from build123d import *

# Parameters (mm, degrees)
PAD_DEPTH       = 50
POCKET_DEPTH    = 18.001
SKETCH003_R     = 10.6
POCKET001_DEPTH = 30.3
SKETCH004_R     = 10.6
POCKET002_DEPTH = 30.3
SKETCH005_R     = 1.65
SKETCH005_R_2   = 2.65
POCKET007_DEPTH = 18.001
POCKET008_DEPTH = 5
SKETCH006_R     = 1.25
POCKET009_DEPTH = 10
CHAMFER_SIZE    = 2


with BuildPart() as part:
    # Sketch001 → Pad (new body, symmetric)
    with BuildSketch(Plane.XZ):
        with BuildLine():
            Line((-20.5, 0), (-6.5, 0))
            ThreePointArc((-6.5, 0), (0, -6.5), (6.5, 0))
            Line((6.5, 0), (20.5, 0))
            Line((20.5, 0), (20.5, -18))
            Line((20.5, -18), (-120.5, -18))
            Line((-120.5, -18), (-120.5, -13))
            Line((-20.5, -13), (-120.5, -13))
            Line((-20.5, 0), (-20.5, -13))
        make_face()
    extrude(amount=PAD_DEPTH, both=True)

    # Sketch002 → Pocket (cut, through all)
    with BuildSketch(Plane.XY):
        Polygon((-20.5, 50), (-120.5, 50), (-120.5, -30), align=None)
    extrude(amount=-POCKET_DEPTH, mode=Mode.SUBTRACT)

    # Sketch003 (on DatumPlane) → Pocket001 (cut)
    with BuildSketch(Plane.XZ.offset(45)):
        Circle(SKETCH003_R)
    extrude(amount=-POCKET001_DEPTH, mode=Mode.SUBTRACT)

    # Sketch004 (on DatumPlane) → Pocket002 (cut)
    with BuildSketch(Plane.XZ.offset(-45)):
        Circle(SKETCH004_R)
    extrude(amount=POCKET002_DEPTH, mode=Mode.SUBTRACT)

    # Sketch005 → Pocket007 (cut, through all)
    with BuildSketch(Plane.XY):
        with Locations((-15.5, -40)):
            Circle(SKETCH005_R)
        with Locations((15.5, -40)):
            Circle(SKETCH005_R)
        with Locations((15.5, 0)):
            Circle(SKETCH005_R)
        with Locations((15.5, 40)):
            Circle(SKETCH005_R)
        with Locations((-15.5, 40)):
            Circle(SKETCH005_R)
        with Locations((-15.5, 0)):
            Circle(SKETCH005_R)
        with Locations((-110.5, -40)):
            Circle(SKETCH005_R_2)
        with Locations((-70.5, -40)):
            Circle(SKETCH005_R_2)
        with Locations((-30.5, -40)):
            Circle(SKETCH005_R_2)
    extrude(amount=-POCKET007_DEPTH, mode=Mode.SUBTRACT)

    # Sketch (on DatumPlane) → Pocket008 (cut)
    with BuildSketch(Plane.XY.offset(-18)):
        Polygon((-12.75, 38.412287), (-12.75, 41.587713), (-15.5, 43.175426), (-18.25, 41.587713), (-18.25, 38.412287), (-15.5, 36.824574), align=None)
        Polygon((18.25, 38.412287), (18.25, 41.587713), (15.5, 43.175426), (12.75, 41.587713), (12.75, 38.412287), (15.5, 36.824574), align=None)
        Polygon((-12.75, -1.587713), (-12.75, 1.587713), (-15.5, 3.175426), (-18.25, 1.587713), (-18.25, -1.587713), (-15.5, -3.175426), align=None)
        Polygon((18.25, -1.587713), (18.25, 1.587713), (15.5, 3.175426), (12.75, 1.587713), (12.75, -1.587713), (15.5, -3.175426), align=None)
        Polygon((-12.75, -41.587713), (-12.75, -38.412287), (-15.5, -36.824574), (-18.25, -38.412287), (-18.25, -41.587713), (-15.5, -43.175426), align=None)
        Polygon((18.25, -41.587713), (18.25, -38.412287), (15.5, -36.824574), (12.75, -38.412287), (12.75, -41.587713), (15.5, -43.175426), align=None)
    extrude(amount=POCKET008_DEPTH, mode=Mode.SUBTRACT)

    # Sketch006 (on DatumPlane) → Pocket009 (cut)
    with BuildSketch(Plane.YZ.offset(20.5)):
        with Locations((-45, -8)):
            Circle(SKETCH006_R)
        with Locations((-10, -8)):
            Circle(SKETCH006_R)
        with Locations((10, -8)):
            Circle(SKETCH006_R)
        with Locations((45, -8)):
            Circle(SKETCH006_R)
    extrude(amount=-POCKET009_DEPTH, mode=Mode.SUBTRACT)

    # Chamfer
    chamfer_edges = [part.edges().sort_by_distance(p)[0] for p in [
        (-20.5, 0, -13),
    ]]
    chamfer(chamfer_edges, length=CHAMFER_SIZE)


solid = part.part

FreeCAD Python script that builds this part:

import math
import FreeCAD as App
import Part
import Sketcher
from FreeCAD import Vector
Q = App.Units.Quantity


def edges_at(feature, points):
    """Names of the edges that pass closest to the given points."""
    edges = feature.Shape.Edges
    near = lambda p: min(range(len(edges)), key=lambda i: edges[i].distToShape(Part.Vertex(*p))[0])
    return sorted({f"Edge{near(p) + 1}" for p in points})


def add_polygon(sketch, points):
    """Adds a closed chain of lines whose ends are joined by coincident constraints."""
    first, n = sketch.GeometryCount, len(points)
    for a, b in zip(points, points[1:] + points[:1]):
        sketch.addGeometry(Part.LineSegment(App.Vector(*a, 0), App.Vector(*b, 0)), False)
    for i in range(n):
        sketch.addConstraint(Sketcher.Constraint("Coincident", first + i, 2, first + (i + 1) % n, 1))

doc = App.newDocument("Part")
body = doc.addObject("PartDesign::Body", "Body")

# Sketch on XZ plane
sketch1 = body.newObject("Sketcher::SketchObject", "Sketch")
sketch1.AttachmentSupport = (doc.getObject("XZ_Plane"), [""])
sketch1.MapMode = "FlatFace"
sketch1.addGeometry([
    Part.LineSegment(Vector(-6.5, 0, 0), Vector(-20.5, 0, 0)),  # 0
    Part.LineSegment(Vector(-20.5, 0, 0), Vector(-20.5, -13, 0)),  # 1
    Part.LineSegment(Vector(-20.5, -13, 0), Vector(-120.5, -13, 0)),  # 2
    Part.LineSegment(Vector(-120.5, -13, 0), Vector(-120.5, -18, 0)),  # 3
    Part.LineSegment(Vector(-120.5, -18, 0), Vector(20.5, -18, 0)),  # 4
    Part.LineSegment(Vector(20.5, -18, 0), Vector(20.5, 0, 0)),  # 5
    Part.LineSegment(Vector(20.5, 0, 0), Vector(6.5, 0, 0)),  # 6
    Part.ArcOfCircle(Part.Circle(Vector(0, 0, 0), Vector(0, 0, 1), 6.5), math.radians(180), math.radians(360)),  # 7
], False)
sketch1.addConstraint([
    Sketcher.Constraint("Coincident", 0, 2, 1, 1),
    Sketcher.Constraint("Coincident", 1, 2, 2, 1),
    Sketcher.Constraint("Coincident", 2, 2, 3, 1),
    Sketcher.Constraint("Coincident", 3, 2, 4, 1),
    Sketcher.Constraint("Coincident", 4, 2, 5, 1),
    Sketcher.Constraint("Coincident", 5, 2, 6, 1),
    Sketcher.Constraint("Coincident", 6, 2, 7, 2),
    Sketcher.Constraint("Coincident", 7, 1, 0, 1),
    Sketcher.Constraint("Horizontal", 0),
    Sketcher.Constraint("Vertical", 1),
    Sketcher.Constraint("Horizontal", 2),
    Sketcher.Constraint("Vertical", 3),
    Sketcher.Constraint("Horizontal", 4),
    Sketcher.Constraint("Vertical", 5),
    Sketcher.Constraint("Horizontal", 6),
    Sketcher.Constraint("Coincident", 7, 3, -1, 1),
    Sketcher.Constraint("Symmetric", 0, 2, 5, 2, -1, 1),
    Sketcher.Constraint("PointOnObject", 0, 2, -1),
    Sketcher.Constraint("Radius", 7, Q("6.5 mm")),
    Sketcher.Constraint("DistanceX", 0, 2, 0, 1, Q("14 mm")),
    Sketcher.Constraint("DistanceX", 2, 2, 2, 1, Q("100 mm")),
    Sketcher.Constraint("DistanceY", 1, 2, 1, 1, Q("13 mm")),
    Sketcher.Constraint("DistanceY", 3, 2, 3, 1, Q("5 mm")),
])
pad1 = body.newObject("PartDesign::Pad", "Pad")
pad1.Profile = sketch1
pad1.Length = 100
pad1.Midplane = True

# Sketch on XY plane
sketch2 = body.newObject("Sketcher::SketchObject", "Sketch001")
sketch2.AttachmentSupport = (doc.getObject("XY_Plane"), [""])
sketch2.MapMode = "FlatFace"
add_polygon(sketch2, [(-20.5, 50), (-120.5, 50), (-120.5, -30)])  # lines 0-2
sketch2.addConstraint([
    Sketcher.Constraint("Horizontal", 0),
    Sketcher.Constraint("Vertical", 1),
    Sketcher.Constraint("DistanceX", 0, 2, 0, 1, Q("100 mm")),
    Sketcher.Constraint("DistanceY", 1, 2, 1, 1, Q("80 mm")),
    Sketcher.Constraint("DistanceY", -1, 1, 0, 2, Q("50 mm")),
    Sketcher.Constraint("DistanceX", 0, 2, -1, 1, Q("120.5 mm")),
])
pocket1 = body.newObject("PartDesign::Pocket", "Pocket")
pocket1.Profile = sketch2
pocket1.Type = "ThroughAll"

# Sketch on XZ plane
sketch3 = body.newObject("Sketcher::SketchObject", "Sketch002")
sketch3.AttachmentSupport = (doc.getObject("XZ_Plane"), [""])
sketch3.MapMode = "FlatFace"
sketch3.AttachmentOffset = App.Placement(Vector(0, 0, 45), App.Rotation())
sketch3.addGeometry(Part.Circle(Vector(0, 0, 0), Vector(0, 0, 1), 10.6), False)
sketch3.addConstraint([
    Sketcher.Constraint("Coincident", 0, 3, -1, 1),
    Sketcher.Constraint("Diameter", 0, Q("21.2 mm")),
])
pocket2 = body.newObject("PartDesign::Pocket", "Pocket001")
pocket2.Profile = sketch3
pocket2.Length = 30.3

# Sketch on XZ plane
sketch4 = body.newObject("Sketcher::SketchObject", "Sketch003")
sketch4.AttachmentSupport = (doc.getObject("XZ_Plane"), [""])
sketch4.MapMode = "FlatFace"
sketch4.AttachmentOffset = App.Placement(Vector(0, 0, -45), App.Rotation())
sketch4.addGeometry(Part.Circle(Vector(0, 0, 0), Vector(0, 0, 1), 10.6), False)
sketch4.addConstraint([
    Sketcher.Constraint("Coincident", 0, 3, -1, 1),
    Sketcher.Constraint("Diameter", 0, Q("21.2 mm")),
])
pocket3 = body.newObject("PartDesign::Pocket", "Pocket002")
pocket3.Profile = sketch4
pocket3.Length = 30.3
pocket3.Reversed = True

# Sketch on XY plane
sketch5 = body.newObject("Sketcher::SketchObject", "Sketch004")
sketch5.AttachmentSupport = (doc.getObject("XY_Plane"), [""])
sketch5.MapMode = "FlatFace"
sketch5.addGeometry([
    Part.Circle(Vector(-15.5, -40, 0), Vector(0, 0, 1), 1.65),  # 0
    Part.Circle(Vector(15.5, -40, 0), Vector(0, 0, 1), 1.65),  # 1
    Part.Circle(Vector(15.5, 0, 0), Vector(0, 0, 1), 1.65),  # 2
    Part.Circle(Vector(15.5, 40, 0), Vector(0, 0, 1), 1.65),  # 3
    Part.Circle(Vector(-15.5, 40, 0), Vector(0, 0, 1), 1.65),  # 4
    Part.Circle(Vector(-15.5, 0, 0), Vector(0, 0, 1), 1.65),  # 5
    Part.Circle(Vector(-110.5, -40, 0), Vector(0, 0, 1), 2.65),  # 6
    Part.Circle(Vector(-70.5, -40, 0), Vector(0, 0, 1), 2.65),  # 7
    Part.Circle(Vector(-30.5, -40, 0), Vector(0, 0, 1), 2.65),  # 8
], False)
sketch5.addConstraint([
    Sketcher.Constraint("Equal", 0, 1),
    Sketcher.Constraint("Equal", 1, 2),
    Sketcher.Constraint("Equal", 2, 3),
    Sketcher.Constraint("Equal", 3, 4),
    Sketcher.Constraint("Equal", 4, 5),
    Sketcher.Constraint("Equal", 6, 7),
    Sketcher.Constraint("Equal", 7, 8),
    Sketcher.Constraint("Symmetric", 0, 3, 3, 3, -1, 1),
    Sketcher.Constraint("Symmetric", 1, 3, 4, 3, -1, 1),
    Sketcher.Constraint("Symmetric", 2, 3, 5, 3, -1, 1),
    Sketcher.Constraint("Symmetric", 0, 3, 1, 3, -2),
    Sketcher.Constraint("PointOnObject", 2, 3, -1),
    Sketcher.Constraint("Horizontal", 1, 3, 6, 3),
    Sketcher.Constraint("Horizontal", 6, 3, 7, 3),
    Sketcher.Constraint("Horizontal", 7, 3, 8, 3),
    Sketcher.Constraint("Vertical", 1, 3, 2, 3),
    Sketcher.Constraint("Diameter", 0, Q("3.3 mm")),
    Sketcher.Constraint("Diameter", 6, Q("5.3 mm")),
    Sketcher.Constraint("DistanceY", 0, 3, -1, 1, Q("40 mm")),
    Sketcher.Constraint("DistanceX", 0, 3, 1, 3, Q("31 mm")),
    Sketcher.Constraint("DistanceX", 6, 3, 0, 3, Q("95 mm")),
    Sketcher.Constraint("DistanceX", 6, 3, 7, 3, Q("40 mm")),
    Sketcher.Constraint("DistanceX", 8, 3, 0, 3, Q("15 mm")),
])
pocket4 = body.newObject("PartDesign::Pocket", "Pocket003")
pocket4.Profile = sketch5
pocket4.Type = "ThroughAll"

# Sketch on XY plane
sketch6 = body.newObject("Sketcher::SketchObject", "Sketch005")
sketch6.AttachmentSupport = (doc.getObject("XY_Plane"), [""])
sketch6.MapMode = "FlatFace"
sketch6.AttachmentOffset = App.Placement(Vector(0, 0, -18), App.Rotation())
add_polygon(sketch6, [(-12.75, 38.412287), (-12.75, 41.587713), (-15.5, 43.175426), (-18.25, 41.587713), (-18.25, 38.412287), (-15.5, 36.824574)])  # lines 0-5
add_polygon(sketch6, [(18.25, 38.412287), (18.25, 41.587713), (15.5, 43.175426), (12.75, 41.587713), (12.75, 38.412287), (15.5, 36.824574)])  # lines 6-11
add_polygon(sketch6, [(-12.75, -1.587713), (-12.75, 1.587713), (-15.5, 3.175426), (-18.25, 1.587713), (-18.25, -1.587713), (-15.5, -3.175426)])  # lines 12-17
add_polygon(sketch6, [(18.25, -1.587713), (18.25, 1.587713), (15.5, 3.175426), (12.75, 1.587713), (12.75, -1.587713), (15.5, -3.175426)])  # lines 18-23
add_polygon(sketch6, [(-12.75, -41.587713), (-12.75, -38.412287), (-15.5, -36.824574), (-18.25, -38.412287), (-18.25, -41.587713), (-15.5, -43.175426)])  # lines 24-29
add_polygon(sketch6, [(18.25, -41.587713), (18.25, -38.412287), (15.5, -36.824574), (12.75, -38.412287), (12.75, -41.587713), (15.5, -43.175426)])  # lines 30-35
sketch6.addConstraint([
    Sketcher.Constraint("Vertical", 0),
    Sketcher.Constraint("Vertical", 3),
    Sketcher.Constraint("Vertical", 6),
    Sketcher.Constraint("Vertical", 9),
    Sketcher.Constraint("Vertical", 12),
    Sketcher.Constraint("Vertical", 15),
    Sketcher.Constraint("Vertical", 18),
    Sketcher.Constraint("Vertical", 21),
    Sketcher.Constraint("Vertical", 24),
    Sketcher.Constraint("Vertical", 27),
    Sketcher.Constraint("Vertical", 30),
    Sketcher.Constraint("Vertical", 33),
    Sketcher.Constraint("Symmetric", 15, 2, 18, 2, -1, 1),
    Sketcher.Constraint("Symmetric", 16, 2, 19, 2, -1, 1),
    Sketcher.Constraint("Symmetric", 17, 2, 20, 2, -1, 1),
    Sketcher.Constraint("Symmetric", 13, 2, 22, 2, -1, 1),
    Sketcher.Constraint("Symmetric", 9, 2, 24, 2, -1, 1),
    Sketcher.Constraint("Symmetric", 10, 2, 25, 2, -1, 1),
    Sketcher.Constraint("Symmetric", 11, 2, 26, 2, -1, 1),
    Sketcher.Constraint("Symmetric", 7, 2, 28, 2, -1, 1),
    Sketcher.Constraint("Symmetric", 3, 2, 30, 2, -1, 1),
    Sketcher.Constraint("Symmetric", 4, 2, 31, 2, -1, 1),
    Sketcher.Constraint("Symmetric", 5, 2, 32, 2, -1, 1),
    Sketcher.Constraint("Symmetric", 1, 2, 34, 2, -1, 1),
    Sketcher.Constraint("Symmetric", 2, 2, 6, 2, -2),
    Sketcher.Constraint("Symmetric", 1, 2, 7, 2, -2),
    Sketcher.Constraint("Symmetric", 0, 2, 8, 2, -2),
    Sketcher.Constraint("Symmetric", 4, 2, 10, 2, -2),
    Sketcher.Constraint("Symmetric", 13, 2, 19, 2, -2),
    Sketcher.Constraint("Parallel", 1, 4),
    Sketcher.Constraint("Parallel", 2, 5),
    Sketcher.Constraint("Parallel", 4, 7),
    Sketcher.Constraint("Parallel", 7, 10),
    Sketcher.Constraint("Parallel", 8, 11),
    Sketcher.Constraint("Parallel", 10, 13),
    Sketcher.Constraint("Parallel", 11, 14),
    Sketcher.Constraint("Parallel", 13, 16),
    Sketcher.Constraint("Parallel", 14, 17),
    Sketcher.Constraint("Parallel", 19, 22),
    Sketcher.Constraint("Parallel", 20, 23),
    Sketcher.Constraint("Parallel", 25, 28),
    Sketcher.Constraint("Parallel", 26, 29),
    Sketcher.Constraint("Parallel", 31, 34),
    Sketcher.Constraint("Parallel", 32, 35),
    Sketcher.Constraint("Horizontal", 0, 2, 2, 2),
    Sketcher.Constraint("Horizontal", 3, 2, 5, 2),
    Sketcher.Constraint("Horizontal", 12, 2, 14, 2),
    Sketcher.Constraint("Vertical", 5, 2, 12, 2),
    Sketcher.Constraint("Vertical", 4, 2, 13, 2),
    Sketcher.Constraint("Equal", 9, 12),
    Sketcher.Constraint("Angle", 1, Q("150.000004 deg")),
    Sketcher.Constraint("DistanceX", 0, 2, 6, 2, Q("31 mm")),
    Sketcher.Constraint("DistanceY", 12, 2, 0, 2, Q("40 mm")),
    Sketcher.Constraint("DistanceX", 2, 2, 0, 2, Q("5.5 mm")),
    Sketcher.Constraint("DistanceY", 0, 1, 0, 2, Q("3.175426 mm")),
])
pocket5 = body.newObject("PartDesign::Pocket", "Pocket004")
pocket5.Profile = sketch6
pocket5.Length = 5
pocket5.Reversed = True

# Sketch on YZ plane
sketch7 = body.newObject("Sketcher::SketchObject", "Sketch006")
sketch7.AttachmentSupport = (doc.getObject("YZ_Plane"), [""])
sketch7.MapMode = "FlatFace"
sketch7.AttachmentOffset = App.Placement(Vector(0, 0, 20.5), App.Rotation())
sketch7.addGeometry([
    Part.Circle(Vector(-45, -8, 0), Vector(0, 0, 1), 1.25),
    Part.Circle(Vector(-10, -8, 0), Vector(0, 0, 1), 1.25),
    Part.Circle(Vector(10, -8, 0), Vector(0, 0, 1), 1.25),
    Part.Circle(Vector(45, -8, 0), Vector(0, 0, 1), 1.25),
], False)
sketch7.addConstraint([
    Sketcher.Constraint("Equal", 0, 1),
    Sketcher.Constraint("Equal", 1, 2),
    Sketcher.Constraint("Equal", 2, 3),
    Sketcher.Constraint("Symmetric", 1, 3, 2, 3, -2),
    Sketcher.Constraint("Symmetric", 0, 3, 3, 3, -2),
    Sketcher.Constraint("Horizontal", 0, 3, 1, 3),
    Sketcher.Constraint("Diameter", 0, Q("2.5 mm")),
    Sketcher.Constraint("DistanceX", 0, 3, -1, 1, Q("45 mm")),
    Sketcher.Constraint("DistanceY", 0, 3, -1, 1, Q("8 mm")),
    Sketcher.Constraint("DistanceX", 1, 3, -1, 1, Q("10 mm")),
])
pocket6 = body.newObject("PartDesign::Pocket", "Pocket005")
pocket6.Profile = sketch7
pocket6.Length = 10
doc.recompute()

chamfer = body.newObject("PartDesign::Chamfer", "Chamfer")
chamfer.Base = (pocket6, edges_at(pocket6, [(-20.5, 0, -13)]))
chamfer.Size = 2

doc.recompute()
